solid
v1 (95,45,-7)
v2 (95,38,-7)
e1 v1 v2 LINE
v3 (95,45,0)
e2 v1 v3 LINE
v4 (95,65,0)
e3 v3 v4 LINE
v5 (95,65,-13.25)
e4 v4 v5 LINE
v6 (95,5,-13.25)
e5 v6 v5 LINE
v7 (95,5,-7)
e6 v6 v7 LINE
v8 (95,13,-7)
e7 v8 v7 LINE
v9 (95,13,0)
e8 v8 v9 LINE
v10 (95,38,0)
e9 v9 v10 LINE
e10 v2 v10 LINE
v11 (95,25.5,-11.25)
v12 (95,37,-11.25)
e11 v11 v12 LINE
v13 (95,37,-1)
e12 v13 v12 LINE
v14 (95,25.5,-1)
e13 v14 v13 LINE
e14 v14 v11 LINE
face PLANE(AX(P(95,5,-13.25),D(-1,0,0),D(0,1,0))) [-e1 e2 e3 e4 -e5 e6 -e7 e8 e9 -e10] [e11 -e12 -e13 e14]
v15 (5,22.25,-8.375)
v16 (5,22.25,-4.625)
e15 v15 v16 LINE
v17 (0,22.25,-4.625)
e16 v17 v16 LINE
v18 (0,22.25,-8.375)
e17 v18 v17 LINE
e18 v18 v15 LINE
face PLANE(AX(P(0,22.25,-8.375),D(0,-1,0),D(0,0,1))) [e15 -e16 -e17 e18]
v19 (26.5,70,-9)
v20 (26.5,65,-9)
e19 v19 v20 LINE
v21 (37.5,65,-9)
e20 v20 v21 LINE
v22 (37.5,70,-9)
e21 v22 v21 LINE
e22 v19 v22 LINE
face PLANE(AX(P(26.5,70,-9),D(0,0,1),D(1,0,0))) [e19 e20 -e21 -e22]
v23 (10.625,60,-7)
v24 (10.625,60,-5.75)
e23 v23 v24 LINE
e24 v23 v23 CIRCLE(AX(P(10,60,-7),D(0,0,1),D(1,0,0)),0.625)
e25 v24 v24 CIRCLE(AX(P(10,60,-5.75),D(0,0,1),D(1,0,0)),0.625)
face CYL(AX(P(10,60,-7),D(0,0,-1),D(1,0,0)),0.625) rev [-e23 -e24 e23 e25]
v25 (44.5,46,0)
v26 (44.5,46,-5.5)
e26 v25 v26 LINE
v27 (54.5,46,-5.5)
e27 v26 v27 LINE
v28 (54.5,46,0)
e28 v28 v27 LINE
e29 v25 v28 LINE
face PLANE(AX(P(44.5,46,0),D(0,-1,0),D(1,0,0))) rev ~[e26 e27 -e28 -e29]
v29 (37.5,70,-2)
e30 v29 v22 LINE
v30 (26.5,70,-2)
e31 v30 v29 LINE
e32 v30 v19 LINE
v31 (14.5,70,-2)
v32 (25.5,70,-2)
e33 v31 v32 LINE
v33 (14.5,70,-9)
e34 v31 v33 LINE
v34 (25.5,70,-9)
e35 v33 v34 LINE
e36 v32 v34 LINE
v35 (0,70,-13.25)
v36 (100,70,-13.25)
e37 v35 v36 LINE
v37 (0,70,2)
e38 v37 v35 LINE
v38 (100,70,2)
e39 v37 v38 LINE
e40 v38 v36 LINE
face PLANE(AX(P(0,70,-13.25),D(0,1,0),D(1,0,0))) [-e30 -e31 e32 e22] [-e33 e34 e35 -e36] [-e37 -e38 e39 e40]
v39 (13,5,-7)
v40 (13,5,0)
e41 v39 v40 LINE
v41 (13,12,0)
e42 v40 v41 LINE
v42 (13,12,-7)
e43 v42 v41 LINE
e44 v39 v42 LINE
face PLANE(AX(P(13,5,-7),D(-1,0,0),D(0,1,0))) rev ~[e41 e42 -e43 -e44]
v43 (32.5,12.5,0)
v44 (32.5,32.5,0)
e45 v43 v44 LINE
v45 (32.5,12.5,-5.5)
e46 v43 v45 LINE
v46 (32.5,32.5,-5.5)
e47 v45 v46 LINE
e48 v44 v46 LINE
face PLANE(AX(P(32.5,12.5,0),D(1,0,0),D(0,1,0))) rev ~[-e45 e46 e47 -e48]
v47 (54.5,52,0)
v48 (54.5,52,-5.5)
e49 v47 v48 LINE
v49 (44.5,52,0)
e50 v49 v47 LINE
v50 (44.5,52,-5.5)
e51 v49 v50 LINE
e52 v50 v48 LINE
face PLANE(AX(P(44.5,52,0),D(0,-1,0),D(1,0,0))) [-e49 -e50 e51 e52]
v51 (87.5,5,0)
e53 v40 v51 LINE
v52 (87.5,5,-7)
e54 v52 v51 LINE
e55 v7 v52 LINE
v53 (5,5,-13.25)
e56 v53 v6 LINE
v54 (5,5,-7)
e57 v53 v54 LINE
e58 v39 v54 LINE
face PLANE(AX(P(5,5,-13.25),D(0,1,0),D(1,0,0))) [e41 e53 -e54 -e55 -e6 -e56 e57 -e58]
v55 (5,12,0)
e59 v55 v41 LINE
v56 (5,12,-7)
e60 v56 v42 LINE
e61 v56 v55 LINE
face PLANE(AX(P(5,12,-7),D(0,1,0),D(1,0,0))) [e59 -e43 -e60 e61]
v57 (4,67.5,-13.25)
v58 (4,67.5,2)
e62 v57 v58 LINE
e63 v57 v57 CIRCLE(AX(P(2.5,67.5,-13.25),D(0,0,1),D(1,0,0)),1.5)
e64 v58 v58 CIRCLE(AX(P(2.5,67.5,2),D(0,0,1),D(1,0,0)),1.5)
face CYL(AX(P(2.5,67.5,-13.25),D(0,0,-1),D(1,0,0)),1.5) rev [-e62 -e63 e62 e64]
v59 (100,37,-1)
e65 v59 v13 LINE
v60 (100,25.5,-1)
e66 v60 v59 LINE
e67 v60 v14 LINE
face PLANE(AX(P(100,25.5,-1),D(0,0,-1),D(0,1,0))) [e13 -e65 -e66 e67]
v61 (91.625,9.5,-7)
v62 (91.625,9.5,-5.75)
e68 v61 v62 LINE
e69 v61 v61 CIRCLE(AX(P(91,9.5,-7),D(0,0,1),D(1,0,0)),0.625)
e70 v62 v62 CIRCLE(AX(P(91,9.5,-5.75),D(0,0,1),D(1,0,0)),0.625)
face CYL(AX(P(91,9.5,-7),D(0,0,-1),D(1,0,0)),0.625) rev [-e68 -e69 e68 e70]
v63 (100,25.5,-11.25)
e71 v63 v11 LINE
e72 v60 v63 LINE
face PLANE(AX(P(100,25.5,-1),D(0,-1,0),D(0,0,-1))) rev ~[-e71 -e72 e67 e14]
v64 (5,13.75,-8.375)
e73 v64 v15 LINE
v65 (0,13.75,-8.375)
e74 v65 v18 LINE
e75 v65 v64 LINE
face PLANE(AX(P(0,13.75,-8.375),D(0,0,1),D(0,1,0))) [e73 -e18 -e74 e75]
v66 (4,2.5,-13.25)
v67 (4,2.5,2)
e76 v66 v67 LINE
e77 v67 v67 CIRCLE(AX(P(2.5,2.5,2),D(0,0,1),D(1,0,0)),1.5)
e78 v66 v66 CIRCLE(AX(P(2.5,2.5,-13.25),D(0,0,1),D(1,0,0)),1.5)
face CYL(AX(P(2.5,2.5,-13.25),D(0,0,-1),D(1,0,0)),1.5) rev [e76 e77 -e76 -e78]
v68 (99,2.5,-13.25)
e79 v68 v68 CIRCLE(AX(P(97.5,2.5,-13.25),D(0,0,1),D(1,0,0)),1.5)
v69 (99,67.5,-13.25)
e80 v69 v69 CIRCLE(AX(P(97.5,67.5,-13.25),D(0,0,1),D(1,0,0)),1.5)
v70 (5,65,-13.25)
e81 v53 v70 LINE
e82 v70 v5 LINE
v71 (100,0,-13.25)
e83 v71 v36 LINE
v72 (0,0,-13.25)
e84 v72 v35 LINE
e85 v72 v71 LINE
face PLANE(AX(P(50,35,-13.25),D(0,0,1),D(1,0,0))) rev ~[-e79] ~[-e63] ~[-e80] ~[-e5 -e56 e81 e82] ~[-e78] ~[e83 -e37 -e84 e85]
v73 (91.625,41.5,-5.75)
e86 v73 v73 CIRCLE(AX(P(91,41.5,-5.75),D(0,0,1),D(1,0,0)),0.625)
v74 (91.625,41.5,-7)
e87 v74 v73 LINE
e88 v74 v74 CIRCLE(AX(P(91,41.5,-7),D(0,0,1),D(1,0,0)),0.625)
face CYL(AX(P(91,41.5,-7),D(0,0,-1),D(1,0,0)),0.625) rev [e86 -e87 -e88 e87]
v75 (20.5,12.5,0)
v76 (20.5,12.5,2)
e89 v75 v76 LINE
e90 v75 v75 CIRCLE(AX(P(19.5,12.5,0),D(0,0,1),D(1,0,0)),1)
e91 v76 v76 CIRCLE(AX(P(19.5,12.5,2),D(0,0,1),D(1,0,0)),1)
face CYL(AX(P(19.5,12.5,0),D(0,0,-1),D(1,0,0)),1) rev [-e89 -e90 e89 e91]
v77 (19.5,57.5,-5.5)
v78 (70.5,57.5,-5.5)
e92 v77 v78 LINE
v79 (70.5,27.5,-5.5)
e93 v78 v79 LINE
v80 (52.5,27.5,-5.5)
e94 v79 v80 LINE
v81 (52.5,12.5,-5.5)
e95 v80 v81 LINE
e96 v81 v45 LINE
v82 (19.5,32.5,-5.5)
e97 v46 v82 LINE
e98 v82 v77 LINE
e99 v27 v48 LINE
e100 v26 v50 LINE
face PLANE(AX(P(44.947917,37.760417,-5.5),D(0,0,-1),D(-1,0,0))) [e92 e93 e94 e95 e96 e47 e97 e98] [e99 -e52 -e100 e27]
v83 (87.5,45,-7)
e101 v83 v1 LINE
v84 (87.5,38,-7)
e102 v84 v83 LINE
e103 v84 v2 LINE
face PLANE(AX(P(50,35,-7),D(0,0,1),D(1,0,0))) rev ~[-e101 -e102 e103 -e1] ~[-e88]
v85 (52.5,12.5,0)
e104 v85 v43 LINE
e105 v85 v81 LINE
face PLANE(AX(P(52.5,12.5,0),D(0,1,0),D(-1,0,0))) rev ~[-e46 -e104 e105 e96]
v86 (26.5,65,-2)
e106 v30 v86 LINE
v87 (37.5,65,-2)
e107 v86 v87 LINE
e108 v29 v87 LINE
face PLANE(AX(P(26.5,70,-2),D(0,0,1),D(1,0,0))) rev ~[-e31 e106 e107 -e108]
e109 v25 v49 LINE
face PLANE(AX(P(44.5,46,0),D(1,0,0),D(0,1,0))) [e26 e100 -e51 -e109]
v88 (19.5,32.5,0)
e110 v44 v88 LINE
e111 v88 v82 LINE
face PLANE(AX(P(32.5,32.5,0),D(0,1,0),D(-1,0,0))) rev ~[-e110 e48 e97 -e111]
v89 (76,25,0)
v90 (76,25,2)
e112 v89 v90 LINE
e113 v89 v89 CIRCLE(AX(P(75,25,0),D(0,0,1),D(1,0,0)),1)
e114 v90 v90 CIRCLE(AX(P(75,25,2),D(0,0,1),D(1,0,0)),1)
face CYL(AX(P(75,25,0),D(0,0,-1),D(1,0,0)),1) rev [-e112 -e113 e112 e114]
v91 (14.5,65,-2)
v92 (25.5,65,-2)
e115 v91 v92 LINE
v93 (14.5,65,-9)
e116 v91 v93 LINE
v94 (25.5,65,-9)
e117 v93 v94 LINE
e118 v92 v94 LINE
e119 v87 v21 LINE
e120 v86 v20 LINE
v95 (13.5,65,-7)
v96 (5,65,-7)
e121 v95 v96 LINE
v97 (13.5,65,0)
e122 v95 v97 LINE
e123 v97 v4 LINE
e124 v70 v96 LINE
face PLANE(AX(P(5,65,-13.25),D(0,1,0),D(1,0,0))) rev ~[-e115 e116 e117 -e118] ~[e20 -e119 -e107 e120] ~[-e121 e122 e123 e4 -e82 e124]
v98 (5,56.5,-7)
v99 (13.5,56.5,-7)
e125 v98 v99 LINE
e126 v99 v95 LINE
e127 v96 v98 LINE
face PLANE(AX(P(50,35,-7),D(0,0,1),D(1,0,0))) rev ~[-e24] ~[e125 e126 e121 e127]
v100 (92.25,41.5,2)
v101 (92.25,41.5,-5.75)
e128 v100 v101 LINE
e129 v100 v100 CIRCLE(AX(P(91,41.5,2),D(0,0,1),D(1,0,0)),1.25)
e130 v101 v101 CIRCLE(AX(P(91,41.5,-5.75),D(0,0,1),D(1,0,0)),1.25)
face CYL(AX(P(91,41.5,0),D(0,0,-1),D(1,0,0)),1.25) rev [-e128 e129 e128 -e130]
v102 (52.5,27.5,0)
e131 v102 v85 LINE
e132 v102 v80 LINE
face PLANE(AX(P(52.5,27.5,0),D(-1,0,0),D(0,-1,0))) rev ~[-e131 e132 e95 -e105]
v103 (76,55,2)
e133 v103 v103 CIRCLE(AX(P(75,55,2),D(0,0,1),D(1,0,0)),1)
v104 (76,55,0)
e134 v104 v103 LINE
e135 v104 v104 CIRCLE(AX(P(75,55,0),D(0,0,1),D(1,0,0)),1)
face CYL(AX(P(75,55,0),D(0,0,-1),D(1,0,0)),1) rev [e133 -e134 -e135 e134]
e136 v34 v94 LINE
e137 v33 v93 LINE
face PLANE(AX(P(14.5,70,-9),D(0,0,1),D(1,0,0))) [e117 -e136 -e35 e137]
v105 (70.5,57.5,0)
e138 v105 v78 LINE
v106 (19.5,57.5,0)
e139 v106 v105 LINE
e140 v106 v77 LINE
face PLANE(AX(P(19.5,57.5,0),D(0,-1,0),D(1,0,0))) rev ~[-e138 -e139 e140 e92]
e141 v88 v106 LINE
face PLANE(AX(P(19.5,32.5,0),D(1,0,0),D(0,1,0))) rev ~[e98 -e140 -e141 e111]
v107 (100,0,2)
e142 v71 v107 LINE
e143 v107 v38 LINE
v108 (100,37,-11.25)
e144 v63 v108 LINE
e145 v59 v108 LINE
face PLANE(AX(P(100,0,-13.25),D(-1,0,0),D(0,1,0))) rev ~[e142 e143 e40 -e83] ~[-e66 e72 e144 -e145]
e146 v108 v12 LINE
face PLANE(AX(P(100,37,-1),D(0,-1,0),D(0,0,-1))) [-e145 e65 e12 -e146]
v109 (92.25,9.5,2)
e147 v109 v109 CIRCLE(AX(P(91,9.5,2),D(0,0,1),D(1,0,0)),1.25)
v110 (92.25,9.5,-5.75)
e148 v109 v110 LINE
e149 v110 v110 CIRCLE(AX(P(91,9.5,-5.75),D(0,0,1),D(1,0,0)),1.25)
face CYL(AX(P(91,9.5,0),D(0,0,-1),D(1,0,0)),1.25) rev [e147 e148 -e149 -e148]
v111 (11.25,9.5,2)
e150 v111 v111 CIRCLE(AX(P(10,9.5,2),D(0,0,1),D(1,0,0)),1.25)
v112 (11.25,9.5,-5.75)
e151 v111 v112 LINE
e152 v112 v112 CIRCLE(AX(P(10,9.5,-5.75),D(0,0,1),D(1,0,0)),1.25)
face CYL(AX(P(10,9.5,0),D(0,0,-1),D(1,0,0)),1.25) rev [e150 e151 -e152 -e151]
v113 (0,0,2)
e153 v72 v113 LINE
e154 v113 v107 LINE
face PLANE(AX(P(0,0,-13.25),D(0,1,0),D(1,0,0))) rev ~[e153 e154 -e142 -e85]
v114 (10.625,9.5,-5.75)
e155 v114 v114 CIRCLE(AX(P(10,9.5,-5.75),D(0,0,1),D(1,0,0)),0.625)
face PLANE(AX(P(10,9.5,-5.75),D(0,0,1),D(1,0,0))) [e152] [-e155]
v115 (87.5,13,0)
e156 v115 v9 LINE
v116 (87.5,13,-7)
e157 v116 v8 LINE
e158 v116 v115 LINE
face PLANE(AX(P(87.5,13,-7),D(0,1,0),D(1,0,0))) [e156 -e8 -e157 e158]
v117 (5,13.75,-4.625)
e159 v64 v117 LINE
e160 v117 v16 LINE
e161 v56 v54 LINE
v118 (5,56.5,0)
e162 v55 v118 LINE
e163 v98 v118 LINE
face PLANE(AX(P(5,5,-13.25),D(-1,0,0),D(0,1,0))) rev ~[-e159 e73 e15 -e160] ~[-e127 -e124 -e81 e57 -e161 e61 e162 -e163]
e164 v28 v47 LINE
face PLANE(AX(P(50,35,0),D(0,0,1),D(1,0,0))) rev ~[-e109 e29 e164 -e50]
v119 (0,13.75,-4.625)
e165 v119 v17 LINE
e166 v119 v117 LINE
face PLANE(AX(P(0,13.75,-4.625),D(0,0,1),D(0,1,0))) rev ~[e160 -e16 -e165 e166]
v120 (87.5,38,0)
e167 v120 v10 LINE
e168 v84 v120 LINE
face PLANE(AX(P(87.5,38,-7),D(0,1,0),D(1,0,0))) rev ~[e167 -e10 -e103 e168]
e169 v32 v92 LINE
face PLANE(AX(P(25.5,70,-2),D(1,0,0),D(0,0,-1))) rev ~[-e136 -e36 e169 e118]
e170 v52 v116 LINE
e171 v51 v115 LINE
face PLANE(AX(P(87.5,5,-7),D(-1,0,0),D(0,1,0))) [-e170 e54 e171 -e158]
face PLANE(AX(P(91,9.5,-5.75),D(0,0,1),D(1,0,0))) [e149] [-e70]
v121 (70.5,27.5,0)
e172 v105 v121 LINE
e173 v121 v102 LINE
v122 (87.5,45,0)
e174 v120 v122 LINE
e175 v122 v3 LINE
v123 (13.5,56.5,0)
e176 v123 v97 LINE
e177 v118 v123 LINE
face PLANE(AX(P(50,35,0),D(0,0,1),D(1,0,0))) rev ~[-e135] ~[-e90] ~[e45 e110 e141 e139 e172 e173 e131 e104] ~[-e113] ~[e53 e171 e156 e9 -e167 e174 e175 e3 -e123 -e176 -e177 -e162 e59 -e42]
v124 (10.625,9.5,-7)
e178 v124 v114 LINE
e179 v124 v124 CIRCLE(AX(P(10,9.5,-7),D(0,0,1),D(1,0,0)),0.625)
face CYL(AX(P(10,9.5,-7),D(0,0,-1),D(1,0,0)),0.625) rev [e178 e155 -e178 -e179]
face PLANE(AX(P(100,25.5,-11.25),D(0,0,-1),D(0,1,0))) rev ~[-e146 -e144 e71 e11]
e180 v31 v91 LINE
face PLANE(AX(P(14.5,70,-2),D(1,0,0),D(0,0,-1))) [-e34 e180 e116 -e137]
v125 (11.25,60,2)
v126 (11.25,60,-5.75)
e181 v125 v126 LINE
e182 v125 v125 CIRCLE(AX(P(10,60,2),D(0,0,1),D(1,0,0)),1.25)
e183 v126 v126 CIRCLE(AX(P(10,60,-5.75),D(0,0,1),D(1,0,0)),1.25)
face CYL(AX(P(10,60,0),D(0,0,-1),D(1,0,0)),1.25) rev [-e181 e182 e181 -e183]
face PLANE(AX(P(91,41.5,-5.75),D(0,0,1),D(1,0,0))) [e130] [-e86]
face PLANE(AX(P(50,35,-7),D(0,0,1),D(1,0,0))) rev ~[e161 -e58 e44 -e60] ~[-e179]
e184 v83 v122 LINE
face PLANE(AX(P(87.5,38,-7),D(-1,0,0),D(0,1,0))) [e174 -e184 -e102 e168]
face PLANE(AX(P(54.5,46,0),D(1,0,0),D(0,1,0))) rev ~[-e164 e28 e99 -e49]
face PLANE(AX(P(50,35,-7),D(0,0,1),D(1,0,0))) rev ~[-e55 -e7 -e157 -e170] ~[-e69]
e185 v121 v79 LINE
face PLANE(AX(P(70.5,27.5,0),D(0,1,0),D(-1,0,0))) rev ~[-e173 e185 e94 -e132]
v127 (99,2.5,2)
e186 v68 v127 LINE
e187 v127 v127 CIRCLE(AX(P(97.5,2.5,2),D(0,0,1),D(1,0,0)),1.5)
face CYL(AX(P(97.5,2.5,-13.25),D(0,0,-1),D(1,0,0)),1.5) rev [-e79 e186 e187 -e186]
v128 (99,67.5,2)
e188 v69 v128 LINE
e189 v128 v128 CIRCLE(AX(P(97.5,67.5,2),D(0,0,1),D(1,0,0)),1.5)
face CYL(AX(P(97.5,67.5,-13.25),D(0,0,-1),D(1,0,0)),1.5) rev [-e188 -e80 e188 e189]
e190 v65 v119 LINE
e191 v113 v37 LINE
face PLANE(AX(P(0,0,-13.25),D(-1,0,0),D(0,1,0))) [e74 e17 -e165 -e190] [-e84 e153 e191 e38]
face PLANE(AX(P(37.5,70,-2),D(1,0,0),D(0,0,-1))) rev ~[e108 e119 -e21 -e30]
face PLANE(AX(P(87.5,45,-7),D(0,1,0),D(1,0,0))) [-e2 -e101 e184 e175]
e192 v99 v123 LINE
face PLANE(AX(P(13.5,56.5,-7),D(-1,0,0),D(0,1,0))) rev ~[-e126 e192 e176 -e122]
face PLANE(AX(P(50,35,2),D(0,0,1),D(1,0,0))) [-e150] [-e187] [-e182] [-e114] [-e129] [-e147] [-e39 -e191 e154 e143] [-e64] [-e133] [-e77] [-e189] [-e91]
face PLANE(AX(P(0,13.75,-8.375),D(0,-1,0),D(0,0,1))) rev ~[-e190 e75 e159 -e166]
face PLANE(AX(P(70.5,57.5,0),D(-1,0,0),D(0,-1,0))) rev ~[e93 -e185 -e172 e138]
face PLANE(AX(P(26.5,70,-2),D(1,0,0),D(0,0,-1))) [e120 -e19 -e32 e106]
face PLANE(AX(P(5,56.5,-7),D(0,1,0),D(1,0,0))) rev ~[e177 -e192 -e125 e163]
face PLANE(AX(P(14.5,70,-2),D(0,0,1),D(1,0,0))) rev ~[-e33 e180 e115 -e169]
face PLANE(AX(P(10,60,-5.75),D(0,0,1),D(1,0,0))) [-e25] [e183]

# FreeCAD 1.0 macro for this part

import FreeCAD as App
import Part
import Sketcher
from FreeCAD import Vector
Q = App.Units.Quantity


def add_polygon(sketch, points):
    """Adds a closed chain of lines whose ends are joined by coincident constraints."""
    first, n = sketch.GeometryCount, len(points)
    for a, b in zip(points, points[1:] + points[:1]):
        sketch.addGeometry(Part.LineSegment(App.Vector(*a, 0), App.Vector(*b, 0)), False)
    for i in range(n):
        sketch.addConstraint(Sketcher.Constraint("Coincident", first + i, 2, first + (i + 1) % n, 1))

doc = App.newDocument("Part")
body = doc.addObject("PartDesign::Body", "Body")

# Sketch on XY plane
sketch1 = body.newObject("Sketcher::SketchObject", "Sketch")
sketch1.AttachmentSupport = (doc.getObject("XY_Plane"), [""])
sketch1.MapMode = "FlatFace"
add_polygon(sketch1, [(0, 70), (0, 0), (100, 0), (100, 70)])  # lines 0-3
sketch1.addGeometry(Part.Circle(Vector(2.5, 2.5, 0), Vector(0, 0, 1), 1.5), False)  # 4
sketch1.addGeometry(Part.Circle(Vector(10, 9.5, 0), Vector(0, 0, 1), 1.2), False)  # 5
sketch1.addGeometry(Part.Circle(Vector(19.5, 12.5, 0), Vector(0, 0, 1), 1), False)  # 6
sketch1.addGeometry(Part.Circle(Vector(97.5, 2.5, 0), Vector(0, 0, 1), 1.5), False)  # 7
sketch1.addGeometry(Part.Circle(Vector(91, 9.5, 0), Vector(0, 0, 1), 1.2), False)  # 8
sketch1.addGeometry(Part.Circle(Vector(75, 25, 0), Vector(0, 0, 1), 1), False)  # 9
sketch1.addGeometry(Part.Circle(Vector(10, 60, 0), Vector(0, 0, 1), 1.2), False)  # 10
sketch1.addGeometry(Part.Circle(Vector(2.5, 67.5, 0), Vector(0, 0, 1), 1.5), False)  # 11
sketch1.addGeometry(Part.Circle(Vector(91, 41.5, 0), Vector(0, 0, 1), 1.2), False)  # 12
sketch1.addGeometry(Part.Circle(Vector(75, 55, 0), Vector(0, 0, 1), 1), False)  # 13
sketch1.addGeometry(Part.Circle(Vector(97.5, 67.5, 0), Vector(0, 0, 1), 1.5), False)  # 14
sketch1.addConstraint(Sketcher.Constraint("Vertical", 0))
sketch1.addConstraint(Sketcher.Constraint("Horizontal", 1))
sketch1.addConstraint(Sketcher.Constraint("Vertical", 2))
sketch1.addConstraint(Sketcher.Constraint("Horizontal", 3))
sketch1.addConstraint(Sketcher.Constraint("Coincident", 0, 2, -1, 1))
sketch1.addConstraint(Sketcher.Constraint("Equal", 4, 7))
sketch1.addConstraint(Sketcher.Constraint("Equal", 5, 8))
sketch1.addConstraint(Sketcher.Constraint("Equal", 6, 9))
sketch1.addConstraint(Sketcher.Constraint("Equal", 8, 10))
sketch1.addConstraint(Sketcher.Constraint("Equal", 7, 11))
sketch1.addConstraint(Sketcher.Constraint("Equal", 10, 12))
sketch1.addConstraint(Sketcher.Constraint("Equal", 9, 13))
sketch1.addConstraint(Sketcher.Constraint("Equal", 11, 14))
sketch1.addConstraint(Sketcher.Constraint("Horizontal", 4, 3, 7, 3))
sketch1.addConstraint(Sketcher.Constraint("Horizontal", 5, 3, 8, 3))
sketch1.addConstraint(Sketcher.Constraint("Horizontal", 11, 3, 14, 3))
sketch1.addConstraint(Sketcher.Constraint("Vertical", 5, 3, 10, 3))
sketch1.addConstraint(Sketcher.Constraint("Vertical", 4, 3, 11, 3))
sketch1.addConstraint(Sketcher.Constraint("Vertical", 8, 3, 12, 3))
sketch1.addConstraint(Sketcher.Constraint("Vertical", 9, 3, 13, 3))
sketch1.addConstraint(Sketcher.Constraint("Vertical", 7, 3, 14, 3))
sketch1.addConstraint(Sketcher.Constraint("Diameter", 4, Q("3 mm")))
sketch1.addConstraint(Sketcher.Constraint("Diameter", 6, Q("2 mm")))
sketch1.addConstraint(Sketcher.Constraint("Diameter", 5, Q("2.5 mm")))
sketch1.addConstraint(Sketcher.Constraint("DistanceX", 1, 1, 1, 2, Q("100 mm")))
sketch1.addConstraint(Sketcher.Constraint("DistanceY", 0, 2, 0, 1, Q("70 mm")))
sketch1.addConstraint(Sketcher.Constraint("DistanceX", -1, 1, 5, 3, Q("10 mm")))
sketch1.addConstraint(Sketcher.Constraint("DistanceX", -1, 1, 8, 3, Q("91 mm")))
sketch1.addConstraint(Sketcher.Constraint("DistanceX", -1, 1, 9, 3, Q("75 mm")))
sketch1.addConstraint(Sketcher.Constraint("DistanceY", -1, 1, 9, 3, Q("25 mm")))
sketch1.addConstraint(Sketcher.Constraint("DistanceY", -1, 1, 10, 3, Q("60 mm")))
sketch1.addConstraint(Sketcher.Constraint("DistanceY", -1, 1, 13, 3, Q("55 mm")))
sketch1.addConstraint(Sketcher.Constraint("DistanceY", 4, 3, 5, 3, Q("7 mm")))
sketch1.addConstraint(Sketcher.Constraint("DistanceY", 5, 3, 6, 3, Q("3 mm")))
sketch1.addConstraint(Sketcher.Constraint("DistanceX", 4, 3, 6, 3, Q("17 mm")))
sketch1.addConstraint(Sketcher.Constraint("DistanceX", 6, 3, 7, 3, Q("78 mm")))
sketch1.addConstraint(Sketcher.Constraint("DistanceY", 6, 3, 11, 3, Q("55 mm")))
sketch1.addConstraint(Sketcher.Constraint("DistanceY", 8, 3, 12, 3, Q("32 mm")))
sketch1.addConstraint(Sketcher.Constraint("DistanceX", -1, 1, 4, 3, Q("2.5 mm")))
sketch1.addConstraint(Sketcher.Constraint("DistanceY", -1, 1, 4, 3, Q("2.5 mm")))
pad1 = body.newObject("PartDesign::Pad", "Pad")
pad1.Profile = sketch1
pad1.Length = 2

# Sketch on XY plane
sketch2 = body.newObject("Sketcher::SketchObject", "Sketch001")
sketch2.AttachmentSupport = (doc.getObject("XY_Plane"), [""])
sketch2.MapMode = "FlatFace"
sketch2.AttachmentOffset = App.Placement(Vector(0, 0, -7), App.Rotation())
add_polygon(sketch2, [(0, 70), (0, 0), (100, 0), (100, 70)])  # lines 0-3
sketch2.addGeometry(Part.Circle(Vector(2.5, 2.5, 0), Vector(0, 0, 1), 1.5), False)  # 4
sketch2.addGeometry(Part.Circle(Vector(97.5, 2.5, 0), Vector(0, 0, 1), 1.5), False)  # 5
add_polygon(sketch2, [(87.5, 5), (13, 5), (13, 12), (5, 12), (5, 56.5), (13.5, 56.5), (13.5, 65), (95, 65), (95, 45), (87.5, 45), (87.5, 38), (95, 38), (95, 13), (87.5, 13)])  # lines 6-19
sketch2.addGeometry(Part.Circle(Vector(2.5, 67.5, 0), Vector(0, 0, 1), 1.5), False)  # 20
sketch2.addGeometry(Part.Circle(Vector(97.5, 67.5, 0), Vector(0, 0, 1), 1.5), False)  # 21
sketch2.addGeometry(Part.Circle(Vector(10, 9.5, 0), Vector(0, 0, 1), 0.6), False)  # 22
sketch2.addGeometry(Part.Circle(Vector(91, 9.5, 0), Vector(0, 0, 1), 0.6), False)  # 23
sketch2.addGeometry(Part.Circle(Vector(91, 41.5, 0), Vector(0, 0, 1), 0.6), False)  # 24
sketch2.addGeometry(Part.Circle(Vector(10, 60, 0), Vector(0, 0, 1), 0.6), False)  # 25
sketch2.addConstraint(Sketcher.Constraint("Vertical", 0))
sketch2.addConstraint(Sketcher.Constraint("Horizontal", 1))
sketch2.addConstraint(Sketcher.Constraint("Vertical", 2))
sketch2.addConstraint(Sketcher.Constraint("Horizontal", 3))
sketch2.addConstraint(Sketcher.Constraint("Horizontal", 6))
sketch2.addConstraint(Sketcher.Constraint("Vertical", 7))
sketch2.addConstraint(Sketcher.Constraint("Horizontal", 8))
sketch2.addConstraint(Sketcher.Constraint("Vertical", 9))
sketch2.addConstraint(Sketcher.Constraint("Horizontal", 10))
sketch2.addConstraint(Sketcher.Constraint("Vertical", 11))
sketch2.addConstraint(Sketcher.Constraint("Horizontal", 12))
sketch2.addConstraint(Sketcher.Constraint("Vertical", 13))
sketch2.addConstraint(Sketcher.Constraint("Horizontal", 14))
sketch2.addConstraint(Sketcher.Constraint("Vertical", 15))
sketch2.addConstraint(Sketcher.Constraint("Horizontal", 16))
sketch2.addConstraint(Sketcher.Constraint("Vertical", 17))
sketch2.addConstraint(Sketcher.Constraint("Horizontal", 18))
sketch2.addConstraint(Sketcher.Constraint("Vertical", 19))
sketch2.addConstraint(Sketcher.Constraint("Coincident", 0, 2, -1, 1))
sketch2.addConstraint(Sketcher.Constraint("Equal", 4, 5))
sketch2.addConstraint(Sketcher.Constraint("Equal", 5, 20))
sketch2.addConstraint(Sketcher.Constraint("Equal", 20, 21))
sketch2.addConstraint(Sketcher.Constraint("Equal", 22, 23))
sketch2.addConstraint(Sketcher.Constraint("Equal", 23, 24))
sketch2.addConstraint(Sketcher.Constraint("Equal", 24, 25))
sketch2.addConstraint(Sketcher.Constraint("Horizontal", 4, 3, 5, 3))
sketch2.addConstraint(Sketcher.Constraint("Horizontal", 20, 3, 21, 3))
sketch2.addConstraint(Sketcher.Constraint("Horizontal", 22, 3, 23, 3))
sketch2.addConstraint(Sketcher.Constraint("Vertical", 4, 3, 20, 3))
sketch2.addConstraint(Sketcher.Constraint("Vertical", 5, 3, 21, 3))
sketch2.addConstraint(Sketcher.Constraint("Vertical", 23, 3, 24, 3))
sketch2.addConstraint(Sketcher.Constraint("Vertical", 22, 3, 25, 3))
sketch2.addConstraint(Sketcher.Constraint("Vertical", 13, 2, 16, 2))
sketch2.addConstraint(Sketcher.Constraint("Vertical", 15, 2, 18, 2))
sketch2.addConstraint(Sketcher.Constraint("Equal", 10, 11))
sketch2.addConstraint(Sketcher.Constraint("Equal", 7, 15))
sketch2.addConstraint(Sketcher.Constraint("Equal", 8, 19))
sketch2.addConstraint(Sketcher.Constraint("Diameter", 4, Q("3 mm")))
sketch2.addConstraint(Sketcher.Constraint("Diameter", 22, Q("1.25 mm")))
sketch2.addConstraint(Sketcher.Constraint("DistanceX", 1, 1, 1, 2, Q("100 mm")))
sketch2.addConstraint(Sketcher.Constraint("DistanceX", 8, 2, 8, 1, Q("8 mm")))
sketch2.addConstraint(Sketcher.Constraint("DistanceY", 0, 2, 0, 1, Q("70 mm")))
sketch2.addConstraint(Sketcher.Constraint("DistanceY", 7, 1, 7, 2, Q("7 mm")))
sketch2.addConstraint(Sketcher.Constraint("DistanceY", 13, 2, 13, 1, Q("20 mm")))
sketch2.addConstraint(Sketcher.Constraint("DistanceY", 17, 2, 17, 1, Q("25 mm")))
sketch2.addConstraint(Sketcher.Constraint("DistanceX", 6, 2, 6, 1, Q("74.5 mm")))
sketch2.addConstraint(Sketcher.Constraint("DistanceX", 10, 1, 10, 2, Q("8.5 mm")))
sketch2.addConstraint(Sketcher.Constraint("DistanceX", 12, 1, 12, 2, Q("81.5 mm")))
sketch2.addConstraint(Sketcher.Constraint("DistanceX", -1, 1, 22, 3, Q("10 mm")))
sketch2.addConstraint(Sketcher.Constraint("DistanceX", -1, 1, 23, 3, Q("91 mm")))
sketch2.addConstraint(Sketcher.Constraint("DistanceY", -1, 1, 25, 3, Q("60 mm")))
sketch2.addConstraint(Sketcher.Constraint("DistanceX", -1, 1, 6, 2, Q("13 mm")))
sketch2.addConstraint(Sketcher.Constraint("DistanceY", -1, 1, 6, 2, Q("5 mm")))
sketch2.addConstraint(Sketcher.Constraint("DistanceX", 4, 3, 5, 3, Q("95 mm")))
sketch2.addConstraint(Sketcher.Constraint("DistanceY", 4, 3, 20, 3, Q("65 mm")))
sketch2.addConstraint(Sketcher.Constraint("DistanceY", 4, 3, 22, 3, Q("7 mm")))
sketch2.addConstraint(Sketcher.Constraint("DistanceY", 24, 3, 21, 3, Q("26 mm")))
sketch2.addConstraint(Sketcher.Constraint("DistanceY", 9, 2, 20, 3, Q("11 mm")))
sketch2.addConstraint(Sketcher.Constraint("DistanceX", 20, 3, 10, 2, Q("11 mm")))
pad2 = body.newObject("PartDesign::Pad", "Pad001")
pad2.Profile = sketch2
pad2.Length = 7

# Sketch on XY plane
sketch3 = body.newObject("Sketcher::SketchObject", "Sketch002")
sketch3.AttachmentSupport = (doc.getObject("XY_Plane"), [""])
sketch3.MapMode = "FlatFace"
add_polygon(sketch3, [(20, 58), (20, 32), (32, 32), (32, 12), (52, 12), (52, 28), (70, 28), (70, 58)])  # lines 0-7
add_polygon(sketch3, [(44, 46), (44, 52), (54, 52), (54, 46)])  # lines 8-11
sketch3.addConstraint(Sketcher.Constraint("Vertical", 0))
sketch3.addConstraint(Sketcher.Constraint("Horizontal", 1))
sketch3.addConstraint(Sketcher.Constraint("Vertical", 2))
sketch3.addConstraint(Sketcher.Constraint("Horizontal", 3))
sketch3.addConstraint(Sketcher.Constraint("Vertical", 4))
sketch3.addConstraint(Sketcher.Constraint("Horizontal", 5))
sketch3.addConstraint(Sketcher.Constraint("Vertical", 6))
sketch3.addConstraint(Sketcher.Constraint("Horizontal", 7))
sketch3.addConstraint(Sketcher.Constraint("Vertical", 8))
sketch3.addConstraint(Sketcher.Constraint("Horizontal", 9))
sketch3.addConstraint(Sketcher.Constraint("Vertical", 10))
sketch3.addConstraint(Sketcher.Constraint("Horizontal", 11))
sketch3.addConstraint(Sketcher.Constraint("Equal", 3, 2))
sketch3.addConstraint(Sketcher.Constraint("DistanceX", 1, 1, 1, 2, Q("13 mm")))
sketch3.addConstraint(Sketcher.Constraint("DistanceX", 3, 1, 3, 2, Q("20 mm")))
sketch3.addConstraint(Sketcher.Constraint("DistanceX", 5, 1, 5, 2, Q("18 mm")))
sketch3.addConstraint(Sketcher.Constraint("DistanceX", 9, 1, 9, 2, Q("10 mm")))
sketch3.addConstraint(Sketcher.Constraint("DistanceY", 0, 2, 0, 1, Q("25 mm")))
sketch3.addConstraint(Sketcher.Constraint("DistanceY", 4, 1, 4, 2, Q("15 mm")))
sketch3.addConstraint(Sketcher.Constraint("DistanceY", 8, 1, 8, 2, Q("6 mm")))
sketch3.addConstraint(Sketcher.Constraint("DistanceY", -1, 1, 8, 2, Q("52 mm")))
sketch3.addConstraint(Sketcher.Constraint("DistanceX", 1, 2, 8, 2, Q("12 mm")))
sketch3.addConstraint(Sketcher.Constraint("DistanceX", -1, 1, 0, 2, Q("19.5 mm")))
sketch3.addConstraint(Sketcher.Constraint("DistanceY", -1, 1, 0, 2, Q("32.5 mm")))
pad3 = body.newObject("PartDesign::Pad", "Pad002")
pad3.Profile = sketch3
pad3.Length = 5.5
pad3.Reversed = True

# Sketch on XY plane
sketch4 = body.newObject("Sketcher::SketchObject", "Sketch003")
sketch4.AttachmentSupport = (doc.getObject("XY_Plane"), [""])
sketch4.MapMode = "FlatFace"
sketch4.AttachmentOffset = App.Placement(Vector(0, 0, -5.75), App.Rotation())
sketch4.addGeometry(Part.Circle(Vector(10, 60, 0), Vector(0, 0, 1), 1.2), False)
sketch4.addGeometry(Part.Circle(Vector(10, 60, 0), Vector(0, 0, 1), 0.6), False)
sketch4.addGeometry(Part.Circle(Vector(10, 9.5, 0), Vector(0, 0, 1), 1.2), False)
sketch4.addGeometry(Part.Circle(Vector(10, 9.5, 0), Vector(0, 0, 1), 0.6), False)
sketch4.addGeometry(Part.Circle(Vector(91, 9.5, 0), Vector(0, 0, 1), 1.2), False)
sketch4.addGeometry(Part.Circle(Vector(91, 9.5, 0), Vector(0, 0, 1), 0.6), False)
sketch4.addGeometry(Part.Circle(Vector(91, 41.5, 0), Vector(0, 0, 1), 1.2), False)
sketch4.addGeometry(Part.Circle(Vector(91, 41.5, 0), Vector(0, 0, 1), 0.6), False)
sketch4.addConstraint(Sketcher.Constraint("Coincident", 1, 3, 0, 3))
sketch4.addConstraint(Sketcher.Constraint("Coincident", 3, 3, 2, 3))
sketch4.addConstraint(Sketcher.Constraint("Coincident", 5, 3, 4, 3))
sketch4.addConstraint(Sketcher.Constraint("Coincident", 7, 3, 6, 3))
sketch4.addConstraint(Sketcher.Constraint("Equal", 0, 2))
sketch4.addConstraint(Sketcher.Constraint("Equal", 1, 3))
sketch4.addConstraint(Sketcher.Constraint("Equal", 2, 4))
sketch4.addConstraint(Sketcher.Constraint("Equal", 3, 5))
sketch4.addConstraint(Sketcher.Constraint("Equal", 4, 6))
sketch4.addConstraint(Sketcher.Constraint("Equal", 5, 7))
sketch4.addConstraint(Sketcher.Constraint("Horizontal", 3, 3, 4, 3))
sketch4.addConstraint(Sketcher.Constraint("Vertical", 1, 3, 2, 3))
sketch4.addConstraint(Sketcher.Constraint("Vertical", 5, 3, 6, 3))
sketch4.addConstraint(Sketcher.Constraint("Diameter", 0, Q("2.5 mm")))
sketch4.addConstraint(Sketcher.Constraint("Diameter", 1, Q("1.25 mm")))
sketch4.addConstraint(Sketcher.Constraint("DistanceX", -1, 1, 0, 3, Q("10 mm")))
sketch4.addConstraint(Sketcher.Constraint("DistanceY", -1, 1, 0, 3, Q("60 mm")))
sketch4.addConstraint(Sketcher.Constraint("DistanceX", -1, 1, 4, 3, Q("91 mm")))
sketch4.addConstraint(Sketcher.Constraint("DistanceY", 4, 3, 6, 3, Q("32 mm")))
sketch4.addConstraint(Sketcher.Constraint("DistanceY", -1, 1, 2, 3, Q("9.5 mm")))
pocket1 = body.newObject("PartDesign::Pocket", "Pocket")
pocket1.Profile = sketch4
pocket1.Length = 5.75
pocket1.Reversed = True

# Sketch on XY plane
sketch5 = body.newObject("Sketcher::SketchObject", "Sketch004")
sketch5.AttachmentSupport = (doc.getObject("XY_Plane"), [""])
sketch5.MapMode = "FlatFace"
sketch5.AttachmentOffset = App.Placement(Vector(0, 0, -13.25), App.Rotation())
add_polygon(sketch5, [(0, 70), (0, 0), (100, 0), (100, 70)])  # lines 0-3
sketch5.addGeometry(Part.Circle(Vector(2.5, 2.5, 0), Vector(0, 0, 1), 1.5), False)  # 4
sketch5.addGeometry(Part.Circle(Vector(97.5, 2.5, 0), Vector(0, 0, 1), 1.5), False)  # 5
add_polygon(sketch5, [(95, 5), (5, 5), (5, 65), (95, 65)])  # lines 6-9
sketch5.addGeometry(Part.Circle(Vector(2.5, 67.5, 0), Vector(0, 0, 1), 1.5), False)  # 10
sketch5.addGeometry(Part.Circle(Vector(97.5, 67.5, 0), Vector(0, 0, 1), 1.5), False)  # 11
sketch5.addConstraint(Sketcher.Constraint("Vertical", 0))
sketch5.addConstraint(Sketcher.Constraint("Horizontal", 1))
sketch5.addConstraint(Sketcher.Constraint("Vertical", 2))
sketch5.addConstraint(Sketcher.Constraint("Horizontal", 3))
sketch5.addConstraint(Sketcher.Constraint("Horizontal", 6))
sketch5.addConstraint(Sketcher.Constraint("Vertical", 7))
sketch5.addConstraint(Sketcher.Constraint("Horizontal", 8))
sketch5.addConstraint(Sketcher.Constraint("Vertical", 9))
sketch5.addConstraint(Sketcher.Constraint("Coincident", 0, 2, -1, 1))
sketch5.addConstraint(Sketcher.Constraint("Equal", 4, 5))
sketch5.addConstraint(Sketcher.Constraint("Equal", 5, 10))
sketch5.addConstraint(Sketcher.Constraint("Equal", 10, 11))
sketch5.addConstraint(Sketcher.Constraint("Horizontal", 4, 3, 5, 3))
sketch5.addConstraint(Sketcher.Constraint("Horizontal", 10, 3, 11, 3))
sketch5.addConstraint(Sketcher.Constraint("Vertical", 4, 3, 10, 3))
sketch5.addConstraint(Sketcher.Constraint("Vertical", 5, 3, 11, 3))
sketch5.addConstraint(Sketcher.Constraint("Diameter", 4, Q("3 mm")))
sketch5.addConstraint(Sketcher.Constraint("DistanceX", 1, 1, 1, 2, Q("100 mm")))
sketch5.addConstraint(Sketcher.Constraint("DistanceX", 6, 2, 6, 1, Q("90 mm")))
sketch5.addConstraint(Sketcher.Constraint("DistanceY", 0, 2, 0, 1, Q("70 mm")))
sketch5.addConstraint(Sketcher.Constraint("DistanceY", 7, 1, 7, 2, Q("60 mm")))
sketch5.addConstraint(Sketcher.Constraint("DistanceX", -1, 1, 6, 2, Q("5 mm")))
sketch5.addConstraint(Sketcher.Constraint("DistanceY", -1, 1, 6, 2, Q("5 mm")))
sketch5.addConstraint(Sketcher.Constraint("DistanceX", 4, 3, 5, 3, Q("95 mm")))
sketch5.addConstraint(Sketcher.Constraint("DistanceY", 4, 3, 10, 3, Q("65 mm")))
sketch5.addConstraint(Sketcher.Constraint("DistanceX", -1, 1, 4, 3, Q("2.5 mm")))
sketch5.addConstraint(Sketcher.Constraint("DistanceY", -1, 1, 4, 3, Q("2.5 mm")))
pad4 = body.newObject("PartDesign::Pad", "Pad003")
pad4.Profile = sketch5
pad4.Length = 13.25

# Sketch on YZ plane
sketch6 = body.newObject("Sketcher::SketchObject", "Sketch005")
sketch6.AttachmentSupport = (doc.getObject("YZ_Plane"), [""])
sketch6.MapMode = "FlatFace"
sketch6.AttachmentOffset = App.Placement(Vector(0, 0, 100), App.Rotation())
add_polygon(sketch6, [(37, -1), (26, -1), (26, -11), (37, -11)])  # lines 0-3
sketch6.addConstraint(Sketcher.Constraint("Horizontal", 0))
sketch6.addConstraint(Sketcher.Constraint("Vertical", 1))
sketch6.addConstraint(Sketcher.Constraint("Horizontal", 2))
sketch6.addConstraint(Sketcher.Constraint("Vertical", 3))
sketch6.addConstraint(Sketcher.Constraint("DistanceX", 0, 2, 0, 1, Q("11.5 mm")))
sketch6.addConstraint(Sketcher.Constraint("DistanceY", 0, 2, -1, 1, Q("1 mm")))
sketch6.addConstraint(Sketcher.Constraint("DistanceX", -1, 1, 2, 2, Q("37 mm")))
sketch6.addConstraint(Sketcher.Constraint("DistanceY", 1, 2, 1, 1, Q("10.25 mm")))
pocket2 = body.newObject("PartDesign::Pocket", "Pocket001")
pocket2.Profile = sketch6
pocket2.Length = 5

# Sketch on YZ plane
sketch7 = body.newObject("Sketcher::SketchObject", "Sketch006")
sketch7.AttachmentSupport = (doc.getObject("YZ_Plane"), [""])
sketch7.MapMode = "FlatFace"
add_polygon(sketch7, [(22.2, -8.4), (13.8, -8.4), (13.8, -4.6), (22.2, -4.6)])  # lines 0-3
sketch7.addConstraint(Sketcher.Constraint("Horizontal", 0))
sketch7.addConstraint(Sketcher.Constraint("Vertical", 1))
sketch7.addConstraint(Sketcher.Constraint("Horizontal", 2))
sketch7.addConstraint(Sketcher.Constraint("Vertical", 3))
sketch7.addConstraint(Sketcher.Constraint("DistanceX", 0, 2, 0, 1, Q("8.5 mm")))
sketch7.addConstraint(Sketcher.Constraint("DistanceY", 1, 1, 1, 2, Q("3.75 mm")))
sketch7.addConstraint(Sketcher.Constraint("DistanceX", -1, 1, 0, 2, Q("13.75 mm")))
sketch7.addConstraint(Sketcher.Constraint("DistanceY", 0, 2, -1, 1, Q("8.375 mm")))
pocket3 = body.newObject("PartDesign::Pocket", "Pocket002")
pocket3.Profile = sketch7
pocket3.Length = 5
pocket3.Reversed = True

# Sketch on XZ plane
sketch8 = body.newObject("Sketcher::SketchObject", "Sketch007")
sketch8.AttachmentSupport = (doc.getObject("XZ_Plane"), [""])
sketch8.MapMode = "FlatFace"
sketch8.AttachmentOffset = App.Placement(Vector(0, 0, -70), App.Rotation())
add_polygon(sketch8, [(14, -9), (14, -2), (26, -2), (26, -9)])  # lines 0-3
add_polygon(sketch8, [(26, -9), (26, -2), (38, -2), (38, -9)])  # lines 4-7
sketch8.addConstraint(Sketcher.Constraint("Vertical", 0))
sketch8.addConstraint(Sketcher.Constraint("Horizontal", 1))
sketch8.addConstraint(Sketcher.Constraint("Vertical", 2))
sketch8.addConstraint(Sketcher.Constraint("Horizontal", 3))
sketch8.addConstraint(Sketcher.Constraint("Vertical", 4))
sketch8.addConstraint(Sketcher.Constraint("Horizontal", 5))
sketch8.addConstraint(Sketcher.Constraint("Vertical", 6))
sketch8.addConstraint(Sketcher.Constraint("Horizontal", 7))
sketch8.addConstraint(Sketcher.Constraint("Horizontal", 1, 2, 4, 2))
sketch8.addConstraint(Sketcher.Constraint("Horizontal", 3, 2, 6, 2))
sketch8.addConstraint(Sketcher.Constraint("Equal", 3, 5))
sketch8.addConstraint(Sketcher.Constraint("DistanceX", 1, 1, 1, 2, Q("11 mm")))
sketch8.addConstraint(Sketcher.Constraint("DistanceY", 0, 1, 0, 2, Q("7 mm")))
sketch8.addConstraint(Sketcher.Constraint("DistanceY", 0, 2, -1, 1, Q("2 mm")))
sketch8.addConstraint(Sketcher.Constraint("DistanceX", 1, 2, 4, 2, Q("1 mm")))
sketch8.addConstraint(Sketcher.Constraint("DistanceX", -1, 1, 0, 2, Q("14.5 mm")))
pocket4 = body.newObject("PartDesign::Pocket", "Pocket003")
pocket4.Profile = sketch8
pocket4.Length = 5
pocket4.Reversed = True

doc.recompute()
